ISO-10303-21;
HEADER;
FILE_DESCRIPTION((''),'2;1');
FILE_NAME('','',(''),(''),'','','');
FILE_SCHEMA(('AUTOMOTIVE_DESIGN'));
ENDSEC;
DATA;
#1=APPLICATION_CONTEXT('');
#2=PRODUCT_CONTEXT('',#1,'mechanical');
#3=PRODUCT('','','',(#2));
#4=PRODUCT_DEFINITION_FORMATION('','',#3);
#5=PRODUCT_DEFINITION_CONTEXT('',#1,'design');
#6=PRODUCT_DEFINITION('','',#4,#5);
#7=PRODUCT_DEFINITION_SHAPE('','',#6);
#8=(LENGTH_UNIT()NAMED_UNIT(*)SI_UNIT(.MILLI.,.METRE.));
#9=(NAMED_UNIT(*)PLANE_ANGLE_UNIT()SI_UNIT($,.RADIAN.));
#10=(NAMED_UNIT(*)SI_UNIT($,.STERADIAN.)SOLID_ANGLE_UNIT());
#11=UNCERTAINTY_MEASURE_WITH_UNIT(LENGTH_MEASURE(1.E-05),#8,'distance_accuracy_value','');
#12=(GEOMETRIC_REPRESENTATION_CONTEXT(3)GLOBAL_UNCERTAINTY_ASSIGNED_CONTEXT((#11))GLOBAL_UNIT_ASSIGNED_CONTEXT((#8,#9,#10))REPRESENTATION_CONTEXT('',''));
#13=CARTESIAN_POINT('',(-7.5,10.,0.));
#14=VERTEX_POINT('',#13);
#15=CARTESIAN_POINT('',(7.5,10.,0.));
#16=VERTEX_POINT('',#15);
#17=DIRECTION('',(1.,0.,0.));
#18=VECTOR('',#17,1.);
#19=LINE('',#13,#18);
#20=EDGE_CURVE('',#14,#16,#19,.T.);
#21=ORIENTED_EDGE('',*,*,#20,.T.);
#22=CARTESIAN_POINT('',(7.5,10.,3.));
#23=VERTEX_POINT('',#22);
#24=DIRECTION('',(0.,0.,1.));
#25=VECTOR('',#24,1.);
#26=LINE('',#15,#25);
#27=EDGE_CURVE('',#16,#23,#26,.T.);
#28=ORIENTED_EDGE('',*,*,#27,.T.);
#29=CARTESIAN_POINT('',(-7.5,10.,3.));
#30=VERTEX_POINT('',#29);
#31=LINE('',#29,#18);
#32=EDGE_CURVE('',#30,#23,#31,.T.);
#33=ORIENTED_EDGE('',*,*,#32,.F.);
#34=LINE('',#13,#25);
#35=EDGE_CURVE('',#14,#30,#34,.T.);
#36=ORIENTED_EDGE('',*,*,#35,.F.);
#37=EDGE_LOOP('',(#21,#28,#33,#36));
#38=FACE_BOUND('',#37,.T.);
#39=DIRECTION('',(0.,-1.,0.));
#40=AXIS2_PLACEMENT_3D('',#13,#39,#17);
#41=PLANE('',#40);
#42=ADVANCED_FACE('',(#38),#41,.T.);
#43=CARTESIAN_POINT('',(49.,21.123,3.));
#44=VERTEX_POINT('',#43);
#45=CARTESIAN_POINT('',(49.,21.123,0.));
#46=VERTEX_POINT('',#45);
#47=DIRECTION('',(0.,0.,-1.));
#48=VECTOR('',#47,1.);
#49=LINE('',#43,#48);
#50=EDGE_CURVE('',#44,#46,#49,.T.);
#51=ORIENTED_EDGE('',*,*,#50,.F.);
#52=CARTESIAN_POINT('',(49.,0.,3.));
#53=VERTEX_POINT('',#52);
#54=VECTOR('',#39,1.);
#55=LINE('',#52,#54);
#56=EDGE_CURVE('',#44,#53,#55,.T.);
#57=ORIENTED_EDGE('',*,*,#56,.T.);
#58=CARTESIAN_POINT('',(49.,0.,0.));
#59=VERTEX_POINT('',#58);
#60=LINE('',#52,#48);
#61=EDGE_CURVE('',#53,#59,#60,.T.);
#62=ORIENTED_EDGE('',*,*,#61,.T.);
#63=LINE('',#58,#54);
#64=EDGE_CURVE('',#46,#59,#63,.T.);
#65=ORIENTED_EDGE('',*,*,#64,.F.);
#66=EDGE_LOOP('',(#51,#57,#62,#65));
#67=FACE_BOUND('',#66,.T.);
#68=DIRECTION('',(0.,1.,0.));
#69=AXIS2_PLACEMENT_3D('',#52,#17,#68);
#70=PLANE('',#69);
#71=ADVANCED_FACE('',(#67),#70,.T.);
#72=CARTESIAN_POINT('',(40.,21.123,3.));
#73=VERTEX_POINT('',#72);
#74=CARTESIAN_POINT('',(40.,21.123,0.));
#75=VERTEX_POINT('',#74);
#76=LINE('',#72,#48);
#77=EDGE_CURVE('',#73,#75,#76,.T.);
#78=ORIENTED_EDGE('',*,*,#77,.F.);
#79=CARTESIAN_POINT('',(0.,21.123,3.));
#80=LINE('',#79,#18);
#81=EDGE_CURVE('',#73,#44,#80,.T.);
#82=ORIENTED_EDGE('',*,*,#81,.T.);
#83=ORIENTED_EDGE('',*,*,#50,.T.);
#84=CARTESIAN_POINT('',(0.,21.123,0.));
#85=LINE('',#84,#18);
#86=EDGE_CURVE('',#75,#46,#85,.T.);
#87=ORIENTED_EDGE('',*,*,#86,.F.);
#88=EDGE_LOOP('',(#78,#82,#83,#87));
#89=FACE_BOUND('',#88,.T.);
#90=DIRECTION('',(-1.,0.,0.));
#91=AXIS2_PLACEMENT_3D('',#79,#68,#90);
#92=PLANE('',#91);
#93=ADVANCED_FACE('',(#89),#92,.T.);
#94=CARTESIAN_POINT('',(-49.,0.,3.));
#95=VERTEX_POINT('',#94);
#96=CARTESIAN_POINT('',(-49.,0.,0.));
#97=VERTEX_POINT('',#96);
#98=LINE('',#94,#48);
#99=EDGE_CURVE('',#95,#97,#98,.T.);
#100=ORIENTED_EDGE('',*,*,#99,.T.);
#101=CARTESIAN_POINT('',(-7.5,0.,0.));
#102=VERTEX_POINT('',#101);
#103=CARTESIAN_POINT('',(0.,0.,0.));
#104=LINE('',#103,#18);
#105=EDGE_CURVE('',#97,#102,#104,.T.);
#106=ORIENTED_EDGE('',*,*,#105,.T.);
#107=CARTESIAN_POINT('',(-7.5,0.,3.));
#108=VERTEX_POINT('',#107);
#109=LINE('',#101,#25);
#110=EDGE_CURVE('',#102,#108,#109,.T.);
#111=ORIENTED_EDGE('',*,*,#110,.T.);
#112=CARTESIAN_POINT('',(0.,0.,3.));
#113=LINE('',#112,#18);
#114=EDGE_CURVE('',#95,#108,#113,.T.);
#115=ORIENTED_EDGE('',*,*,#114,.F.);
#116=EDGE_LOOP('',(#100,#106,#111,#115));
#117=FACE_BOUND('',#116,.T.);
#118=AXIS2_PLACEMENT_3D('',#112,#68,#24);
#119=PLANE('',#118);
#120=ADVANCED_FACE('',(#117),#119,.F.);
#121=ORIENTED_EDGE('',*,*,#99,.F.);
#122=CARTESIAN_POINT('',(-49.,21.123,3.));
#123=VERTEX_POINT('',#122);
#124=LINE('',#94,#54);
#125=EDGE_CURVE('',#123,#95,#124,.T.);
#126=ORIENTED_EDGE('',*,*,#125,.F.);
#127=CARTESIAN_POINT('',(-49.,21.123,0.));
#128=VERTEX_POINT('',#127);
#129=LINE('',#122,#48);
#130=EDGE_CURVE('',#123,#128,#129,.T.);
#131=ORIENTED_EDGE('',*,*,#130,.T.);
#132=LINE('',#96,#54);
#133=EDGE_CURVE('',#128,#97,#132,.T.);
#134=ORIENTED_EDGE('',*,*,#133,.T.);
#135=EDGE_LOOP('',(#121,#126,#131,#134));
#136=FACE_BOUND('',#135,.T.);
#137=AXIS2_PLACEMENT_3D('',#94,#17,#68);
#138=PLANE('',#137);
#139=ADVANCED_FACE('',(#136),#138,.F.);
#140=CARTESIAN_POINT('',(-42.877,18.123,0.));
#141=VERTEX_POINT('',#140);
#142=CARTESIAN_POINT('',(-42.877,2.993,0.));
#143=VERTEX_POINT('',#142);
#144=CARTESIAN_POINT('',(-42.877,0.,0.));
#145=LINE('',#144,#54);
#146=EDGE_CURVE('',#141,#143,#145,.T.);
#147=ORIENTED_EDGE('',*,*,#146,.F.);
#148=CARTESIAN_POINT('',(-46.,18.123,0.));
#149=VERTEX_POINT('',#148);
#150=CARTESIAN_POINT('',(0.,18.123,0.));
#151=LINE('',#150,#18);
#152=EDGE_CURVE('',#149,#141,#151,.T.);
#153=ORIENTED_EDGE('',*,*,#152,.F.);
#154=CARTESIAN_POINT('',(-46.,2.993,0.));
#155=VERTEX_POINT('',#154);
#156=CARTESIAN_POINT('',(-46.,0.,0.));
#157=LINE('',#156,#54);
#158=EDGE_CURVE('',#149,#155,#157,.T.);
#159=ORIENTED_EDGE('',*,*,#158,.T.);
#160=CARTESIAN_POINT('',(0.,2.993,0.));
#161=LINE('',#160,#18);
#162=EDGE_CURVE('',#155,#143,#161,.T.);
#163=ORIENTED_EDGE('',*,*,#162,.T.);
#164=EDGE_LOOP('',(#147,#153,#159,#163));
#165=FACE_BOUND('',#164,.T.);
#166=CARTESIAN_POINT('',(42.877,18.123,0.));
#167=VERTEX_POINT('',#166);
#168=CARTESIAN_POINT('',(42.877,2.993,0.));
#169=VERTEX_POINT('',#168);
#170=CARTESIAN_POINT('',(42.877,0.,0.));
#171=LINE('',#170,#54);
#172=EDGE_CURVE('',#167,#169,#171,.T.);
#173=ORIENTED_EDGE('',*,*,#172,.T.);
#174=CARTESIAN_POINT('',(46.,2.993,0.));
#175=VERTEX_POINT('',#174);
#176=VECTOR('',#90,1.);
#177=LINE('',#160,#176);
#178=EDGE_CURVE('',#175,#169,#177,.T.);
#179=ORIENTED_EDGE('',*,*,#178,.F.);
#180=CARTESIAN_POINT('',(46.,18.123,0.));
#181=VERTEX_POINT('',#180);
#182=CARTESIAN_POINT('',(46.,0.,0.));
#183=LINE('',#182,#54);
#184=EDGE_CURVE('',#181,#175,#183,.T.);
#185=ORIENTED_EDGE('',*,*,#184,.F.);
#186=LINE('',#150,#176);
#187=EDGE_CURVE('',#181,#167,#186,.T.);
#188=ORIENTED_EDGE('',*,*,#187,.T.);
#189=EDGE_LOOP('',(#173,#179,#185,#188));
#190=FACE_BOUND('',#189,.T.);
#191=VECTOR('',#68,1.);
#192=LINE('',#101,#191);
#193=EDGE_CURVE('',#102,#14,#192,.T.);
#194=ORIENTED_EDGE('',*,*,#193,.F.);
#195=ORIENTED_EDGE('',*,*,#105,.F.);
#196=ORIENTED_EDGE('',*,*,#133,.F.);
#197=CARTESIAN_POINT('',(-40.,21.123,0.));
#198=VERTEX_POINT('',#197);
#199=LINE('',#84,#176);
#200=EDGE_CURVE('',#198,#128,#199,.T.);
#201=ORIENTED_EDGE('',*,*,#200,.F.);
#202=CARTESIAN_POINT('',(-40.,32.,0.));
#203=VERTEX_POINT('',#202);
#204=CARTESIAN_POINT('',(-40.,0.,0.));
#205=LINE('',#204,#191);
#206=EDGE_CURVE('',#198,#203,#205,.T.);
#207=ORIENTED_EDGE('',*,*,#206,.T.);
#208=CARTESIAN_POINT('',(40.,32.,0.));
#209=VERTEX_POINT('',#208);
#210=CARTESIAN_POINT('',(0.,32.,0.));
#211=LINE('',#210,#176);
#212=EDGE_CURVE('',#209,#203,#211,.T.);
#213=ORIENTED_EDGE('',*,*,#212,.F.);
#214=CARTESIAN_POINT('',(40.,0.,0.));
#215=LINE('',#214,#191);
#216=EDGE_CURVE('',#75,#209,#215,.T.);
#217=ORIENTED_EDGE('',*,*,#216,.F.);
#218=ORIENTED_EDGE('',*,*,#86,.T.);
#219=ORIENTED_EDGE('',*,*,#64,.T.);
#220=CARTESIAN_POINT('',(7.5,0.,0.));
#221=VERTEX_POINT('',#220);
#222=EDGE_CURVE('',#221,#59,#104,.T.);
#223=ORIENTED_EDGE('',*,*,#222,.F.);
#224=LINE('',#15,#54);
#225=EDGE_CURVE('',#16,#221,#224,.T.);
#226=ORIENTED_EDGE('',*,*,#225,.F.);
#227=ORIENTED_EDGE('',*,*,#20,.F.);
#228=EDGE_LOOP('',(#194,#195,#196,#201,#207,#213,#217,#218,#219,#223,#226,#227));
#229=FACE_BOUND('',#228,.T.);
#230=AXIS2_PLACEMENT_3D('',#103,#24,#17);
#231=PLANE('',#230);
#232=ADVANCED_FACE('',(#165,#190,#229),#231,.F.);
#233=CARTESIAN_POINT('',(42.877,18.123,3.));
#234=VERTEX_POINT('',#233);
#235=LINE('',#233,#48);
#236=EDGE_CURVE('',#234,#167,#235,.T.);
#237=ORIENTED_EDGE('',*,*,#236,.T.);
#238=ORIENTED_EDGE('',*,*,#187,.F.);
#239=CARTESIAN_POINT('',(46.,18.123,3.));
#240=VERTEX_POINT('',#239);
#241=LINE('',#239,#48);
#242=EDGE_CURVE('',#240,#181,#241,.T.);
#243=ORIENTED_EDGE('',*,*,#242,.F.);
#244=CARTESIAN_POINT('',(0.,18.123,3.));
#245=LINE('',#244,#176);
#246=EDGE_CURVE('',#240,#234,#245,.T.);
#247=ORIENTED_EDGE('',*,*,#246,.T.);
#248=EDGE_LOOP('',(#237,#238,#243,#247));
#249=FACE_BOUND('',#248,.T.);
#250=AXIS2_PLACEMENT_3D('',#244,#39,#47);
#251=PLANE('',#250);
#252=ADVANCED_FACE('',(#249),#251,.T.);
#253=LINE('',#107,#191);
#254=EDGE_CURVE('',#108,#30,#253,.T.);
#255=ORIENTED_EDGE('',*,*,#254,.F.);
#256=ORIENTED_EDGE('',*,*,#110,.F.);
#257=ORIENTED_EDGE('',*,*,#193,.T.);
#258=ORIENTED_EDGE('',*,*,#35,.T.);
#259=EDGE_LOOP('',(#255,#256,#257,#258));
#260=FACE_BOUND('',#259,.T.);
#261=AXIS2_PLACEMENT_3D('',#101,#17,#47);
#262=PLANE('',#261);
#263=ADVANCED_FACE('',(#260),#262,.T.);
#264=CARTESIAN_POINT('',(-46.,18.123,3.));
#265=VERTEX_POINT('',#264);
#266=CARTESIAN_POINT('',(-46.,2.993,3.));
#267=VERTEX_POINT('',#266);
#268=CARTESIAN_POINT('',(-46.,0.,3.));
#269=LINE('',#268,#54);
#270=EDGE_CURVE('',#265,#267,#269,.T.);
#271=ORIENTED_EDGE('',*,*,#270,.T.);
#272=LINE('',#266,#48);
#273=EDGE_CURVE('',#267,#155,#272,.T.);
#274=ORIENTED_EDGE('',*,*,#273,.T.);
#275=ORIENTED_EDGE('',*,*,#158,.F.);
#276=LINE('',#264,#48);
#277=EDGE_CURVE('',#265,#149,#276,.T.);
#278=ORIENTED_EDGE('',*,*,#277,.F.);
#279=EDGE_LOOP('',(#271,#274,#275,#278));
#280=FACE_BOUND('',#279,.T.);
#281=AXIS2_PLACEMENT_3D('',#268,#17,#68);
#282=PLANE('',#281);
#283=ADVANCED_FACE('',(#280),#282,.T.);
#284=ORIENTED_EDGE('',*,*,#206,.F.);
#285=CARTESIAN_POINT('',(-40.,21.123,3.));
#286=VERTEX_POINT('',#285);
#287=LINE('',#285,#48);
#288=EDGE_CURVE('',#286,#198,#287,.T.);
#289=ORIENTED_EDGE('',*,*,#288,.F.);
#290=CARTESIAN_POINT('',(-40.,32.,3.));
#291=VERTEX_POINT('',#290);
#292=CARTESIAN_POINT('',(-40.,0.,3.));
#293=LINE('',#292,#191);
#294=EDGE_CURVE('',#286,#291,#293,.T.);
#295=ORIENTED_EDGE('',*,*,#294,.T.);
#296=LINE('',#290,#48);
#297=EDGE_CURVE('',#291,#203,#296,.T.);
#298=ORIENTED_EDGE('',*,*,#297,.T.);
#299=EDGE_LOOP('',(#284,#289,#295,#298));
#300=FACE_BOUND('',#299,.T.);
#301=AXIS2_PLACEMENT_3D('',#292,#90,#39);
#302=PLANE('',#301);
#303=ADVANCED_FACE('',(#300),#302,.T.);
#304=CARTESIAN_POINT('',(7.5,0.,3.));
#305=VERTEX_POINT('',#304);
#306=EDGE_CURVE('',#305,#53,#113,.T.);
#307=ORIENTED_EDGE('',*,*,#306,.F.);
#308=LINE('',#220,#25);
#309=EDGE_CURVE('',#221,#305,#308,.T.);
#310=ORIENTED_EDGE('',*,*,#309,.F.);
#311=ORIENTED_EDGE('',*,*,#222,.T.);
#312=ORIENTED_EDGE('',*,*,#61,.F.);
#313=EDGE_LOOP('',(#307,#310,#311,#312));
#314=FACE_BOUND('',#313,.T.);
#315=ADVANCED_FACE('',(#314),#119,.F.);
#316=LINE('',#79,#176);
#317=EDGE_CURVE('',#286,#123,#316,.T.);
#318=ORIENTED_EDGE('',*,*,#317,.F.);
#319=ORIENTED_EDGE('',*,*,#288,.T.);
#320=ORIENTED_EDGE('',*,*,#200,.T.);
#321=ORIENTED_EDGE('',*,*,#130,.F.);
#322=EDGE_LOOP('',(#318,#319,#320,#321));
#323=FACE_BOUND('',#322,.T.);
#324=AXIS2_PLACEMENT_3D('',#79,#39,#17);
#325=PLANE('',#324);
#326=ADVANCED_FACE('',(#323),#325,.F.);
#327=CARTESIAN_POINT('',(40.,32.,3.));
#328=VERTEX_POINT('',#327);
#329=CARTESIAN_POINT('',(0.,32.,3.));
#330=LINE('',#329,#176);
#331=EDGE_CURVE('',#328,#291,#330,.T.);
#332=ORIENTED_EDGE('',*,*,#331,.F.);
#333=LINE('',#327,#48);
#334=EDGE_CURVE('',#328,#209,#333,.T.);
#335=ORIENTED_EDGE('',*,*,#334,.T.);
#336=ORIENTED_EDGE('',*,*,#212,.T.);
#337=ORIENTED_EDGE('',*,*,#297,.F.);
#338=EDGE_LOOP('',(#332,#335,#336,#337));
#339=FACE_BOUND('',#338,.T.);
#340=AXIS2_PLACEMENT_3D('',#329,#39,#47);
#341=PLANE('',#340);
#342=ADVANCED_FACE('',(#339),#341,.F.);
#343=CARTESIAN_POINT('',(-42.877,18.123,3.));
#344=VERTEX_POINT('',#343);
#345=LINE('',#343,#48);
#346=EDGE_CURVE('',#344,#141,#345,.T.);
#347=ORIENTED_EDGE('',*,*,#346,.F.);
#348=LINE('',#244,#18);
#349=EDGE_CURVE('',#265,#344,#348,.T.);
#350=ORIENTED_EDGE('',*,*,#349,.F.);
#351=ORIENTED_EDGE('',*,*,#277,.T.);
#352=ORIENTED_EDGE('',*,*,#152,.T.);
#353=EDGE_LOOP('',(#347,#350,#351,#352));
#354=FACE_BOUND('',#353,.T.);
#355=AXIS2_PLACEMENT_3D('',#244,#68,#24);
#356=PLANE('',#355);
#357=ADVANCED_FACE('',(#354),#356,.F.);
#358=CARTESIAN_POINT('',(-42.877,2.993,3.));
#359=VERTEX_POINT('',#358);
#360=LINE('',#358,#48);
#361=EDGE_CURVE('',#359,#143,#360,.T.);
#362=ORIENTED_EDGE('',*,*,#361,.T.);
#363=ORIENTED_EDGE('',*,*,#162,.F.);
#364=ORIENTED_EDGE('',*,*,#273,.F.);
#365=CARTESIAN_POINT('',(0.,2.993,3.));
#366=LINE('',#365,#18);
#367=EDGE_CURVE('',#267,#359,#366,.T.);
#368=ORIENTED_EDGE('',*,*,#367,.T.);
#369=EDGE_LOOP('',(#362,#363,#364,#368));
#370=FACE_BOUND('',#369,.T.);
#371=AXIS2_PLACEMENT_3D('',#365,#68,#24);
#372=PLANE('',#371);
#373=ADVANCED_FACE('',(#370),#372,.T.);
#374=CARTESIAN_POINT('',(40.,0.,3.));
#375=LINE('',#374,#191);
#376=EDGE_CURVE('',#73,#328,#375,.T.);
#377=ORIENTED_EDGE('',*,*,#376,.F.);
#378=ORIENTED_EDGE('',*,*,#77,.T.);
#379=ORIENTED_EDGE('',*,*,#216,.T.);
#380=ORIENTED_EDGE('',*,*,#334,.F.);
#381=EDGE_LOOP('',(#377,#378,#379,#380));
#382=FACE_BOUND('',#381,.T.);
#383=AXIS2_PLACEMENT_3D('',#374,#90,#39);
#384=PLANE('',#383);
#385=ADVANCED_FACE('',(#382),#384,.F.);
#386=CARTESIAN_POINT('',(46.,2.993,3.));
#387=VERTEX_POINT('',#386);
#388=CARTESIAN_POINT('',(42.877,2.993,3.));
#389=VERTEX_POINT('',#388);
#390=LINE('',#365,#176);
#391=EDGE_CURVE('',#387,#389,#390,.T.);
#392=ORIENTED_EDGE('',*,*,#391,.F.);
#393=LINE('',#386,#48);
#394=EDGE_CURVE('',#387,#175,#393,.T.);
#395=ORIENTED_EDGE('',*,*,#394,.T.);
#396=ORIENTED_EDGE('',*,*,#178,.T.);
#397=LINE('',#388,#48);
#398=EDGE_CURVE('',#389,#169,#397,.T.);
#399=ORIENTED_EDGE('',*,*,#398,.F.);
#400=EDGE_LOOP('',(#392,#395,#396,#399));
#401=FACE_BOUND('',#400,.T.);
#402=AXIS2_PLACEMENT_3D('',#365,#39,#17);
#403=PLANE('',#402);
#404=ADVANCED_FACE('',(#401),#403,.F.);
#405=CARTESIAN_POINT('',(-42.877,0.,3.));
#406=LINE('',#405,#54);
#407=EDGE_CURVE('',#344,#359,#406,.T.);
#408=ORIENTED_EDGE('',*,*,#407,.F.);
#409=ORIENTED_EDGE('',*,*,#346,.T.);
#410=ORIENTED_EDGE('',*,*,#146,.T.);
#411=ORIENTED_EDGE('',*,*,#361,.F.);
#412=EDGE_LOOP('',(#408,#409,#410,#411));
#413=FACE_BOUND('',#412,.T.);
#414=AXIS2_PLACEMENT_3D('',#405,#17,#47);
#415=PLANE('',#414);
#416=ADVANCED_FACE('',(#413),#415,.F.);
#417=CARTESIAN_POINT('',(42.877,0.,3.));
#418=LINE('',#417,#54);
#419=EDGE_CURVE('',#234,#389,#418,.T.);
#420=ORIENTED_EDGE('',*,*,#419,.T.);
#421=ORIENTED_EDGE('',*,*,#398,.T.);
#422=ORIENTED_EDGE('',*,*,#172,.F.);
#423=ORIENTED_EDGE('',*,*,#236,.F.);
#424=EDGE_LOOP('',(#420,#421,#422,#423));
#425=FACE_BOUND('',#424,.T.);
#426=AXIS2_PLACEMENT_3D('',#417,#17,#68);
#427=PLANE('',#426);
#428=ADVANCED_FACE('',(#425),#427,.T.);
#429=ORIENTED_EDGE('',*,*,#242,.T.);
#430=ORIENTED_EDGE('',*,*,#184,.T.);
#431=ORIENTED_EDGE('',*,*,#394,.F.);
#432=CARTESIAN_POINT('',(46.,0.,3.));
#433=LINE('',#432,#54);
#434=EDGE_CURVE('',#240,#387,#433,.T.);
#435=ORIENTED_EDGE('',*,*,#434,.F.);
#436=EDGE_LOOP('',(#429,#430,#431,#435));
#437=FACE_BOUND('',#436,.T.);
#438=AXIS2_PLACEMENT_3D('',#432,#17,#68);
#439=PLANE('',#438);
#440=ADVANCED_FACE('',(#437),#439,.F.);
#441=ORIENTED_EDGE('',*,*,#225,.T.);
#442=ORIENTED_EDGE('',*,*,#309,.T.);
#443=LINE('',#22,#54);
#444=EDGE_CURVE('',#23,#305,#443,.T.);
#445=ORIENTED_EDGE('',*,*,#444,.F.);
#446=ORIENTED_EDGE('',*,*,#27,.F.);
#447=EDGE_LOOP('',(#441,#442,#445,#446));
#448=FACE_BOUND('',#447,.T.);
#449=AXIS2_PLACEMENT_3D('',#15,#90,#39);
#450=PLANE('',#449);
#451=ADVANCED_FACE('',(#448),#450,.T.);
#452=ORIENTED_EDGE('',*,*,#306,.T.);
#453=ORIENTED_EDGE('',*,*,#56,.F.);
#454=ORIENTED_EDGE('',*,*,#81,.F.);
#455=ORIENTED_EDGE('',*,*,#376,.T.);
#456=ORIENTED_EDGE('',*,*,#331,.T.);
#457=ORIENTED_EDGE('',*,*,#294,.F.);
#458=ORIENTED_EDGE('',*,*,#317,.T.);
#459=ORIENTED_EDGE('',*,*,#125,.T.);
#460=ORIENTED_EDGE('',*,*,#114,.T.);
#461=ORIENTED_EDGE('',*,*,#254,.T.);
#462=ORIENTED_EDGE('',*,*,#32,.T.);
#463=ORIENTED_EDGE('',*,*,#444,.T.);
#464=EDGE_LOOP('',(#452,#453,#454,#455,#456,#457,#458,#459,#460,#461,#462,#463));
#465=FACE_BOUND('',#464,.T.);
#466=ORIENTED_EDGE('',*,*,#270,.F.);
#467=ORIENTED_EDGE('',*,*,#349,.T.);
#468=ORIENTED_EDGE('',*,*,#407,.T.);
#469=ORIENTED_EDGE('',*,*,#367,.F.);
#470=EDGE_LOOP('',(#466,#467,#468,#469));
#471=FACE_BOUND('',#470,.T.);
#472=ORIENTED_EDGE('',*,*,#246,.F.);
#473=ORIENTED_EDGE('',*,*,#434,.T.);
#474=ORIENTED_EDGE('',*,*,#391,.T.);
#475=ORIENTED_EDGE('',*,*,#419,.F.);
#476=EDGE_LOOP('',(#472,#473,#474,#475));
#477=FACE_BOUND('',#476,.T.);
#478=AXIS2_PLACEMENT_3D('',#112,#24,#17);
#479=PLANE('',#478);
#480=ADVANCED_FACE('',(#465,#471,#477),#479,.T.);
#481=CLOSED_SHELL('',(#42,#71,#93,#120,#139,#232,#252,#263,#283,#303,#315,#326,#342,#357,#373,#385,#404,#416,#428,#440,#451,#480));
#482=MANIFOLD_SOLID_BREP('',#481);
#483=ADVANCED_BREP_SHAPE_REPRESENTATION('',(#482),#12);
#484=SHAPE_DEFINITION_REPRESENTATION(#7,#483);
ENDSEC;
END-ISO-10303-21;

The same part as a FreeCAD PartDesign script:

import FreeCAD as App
import Part
import Sketcher


def add_polygon(sketch, points):
    """Adds a closed chain of lines whose ends are joined by coincident constraints."""
    first, n = sketch.GeometryCount, len(points)
    for a, b in zip(points, points[1:] + points[:1]):
        sketch.addGeometry(Part.LineSegment(App.Vector(*a, 0), App.Vector(*b, 0)), False)
    for i in range(n):
        sketch.addConstraint(Sketcher.Constraint("Coincident", first + i, 2, first + (i + 1) % n, 1))

doc = App.newDocument("Part")
body = doc.addObject("PartDesign::Body", "Body")

# Sketch on XY plane
sketch1 = body.newObject("Sketcher::SketchObject", "Sketch")
sketch1.AttachmentSupport = (doc.getObject("XY_Plane"), [""])
sketch1.MapMode = "FlatFace"
add_polygon(sketch1, [(-49, 0), (49, 0), (49, 21.1), (40, 21.1), (40, 32), (-40, 32), (-40, 21.1), (-49, 21.1)])  # lines 0-7
add_polygon(sketch1, [(-42.9, 3), (-46, 3), (-46, 18.1), (-42.9, 18.1)])  # lines 8-11
add_polygon(sketch1, [(46, 3), (42.9, 3), (42.9, 18.1), (46, 18.1)])  # lines 12-15
sketch1.addConstraint(Sketcher.Constraint("Horizontal", 0))
sketch1.addConstraint(Sketcher.Constraint("Vertical", 1))
sketch1.addConstraint(Sketcher.Constraint("Horizontal", 2))
sketch1.addConstraint(Sketcher.Constraint("Vertical", 3))
sketch1.addConstraint(Sketcher.Constraint("Horizontal", 4))
sketch1.addConstraint(Sketcher.Constraint("Vertical", 5))
sketch1.addConstraint(Sketcher.Constraint("Horizontal", 6))
sketch1.addConstraint(Sketcher.Constraint("Vertical", 7))
sketch1.addConstraint(Sketcher.Constraint("Horizontal", 8))
sketch1.addConstraint(Sketcher.Constraint("Vertical", 9))
sketch1.addConstraint(Sketcher.Constraint("Horizontal", 10))
sketch1.addConstraint(Sketcher.Constraint("Vertical", 11))
sketch1.addConstraint(Sketcher.Constraint("Horizontal", 12))
sketch1.addConstraint(Sketcher.Constraint("Vertical", 13))
sketch1.addConstraint(Sketcher.Constraint("Horizontal", 14))
sketch1.addConstraint(Sketcher.Constraint("Vertical", 15))
sketch1.addConstraint(Sketcher.Constraint("Symmetric", 0, 2, 7, 2, -1, 1))
sketch1.addConstraint(Sketcher.Constraint("Symmetric", 2, 2, 5, 2, -2))
sketch1.addConstraint(Sketcher.Constraint("Symmetric", 11, 2, 12, 2, -2))
sketch1.addConstraint(Sketcher.Constraint("Symmetric", 9, 2, 14, 2, -2))
sketch1.addConstraint(Sketcher.Constraint("DistanceX", 0, 1, 0, 2, 98.0))
sketch1.addConstraint(Sketcher.Constraint("DistanceX", 2, 2, 2, 1, 9.0))
sketch1.addConstraint(Sketcher.Constraint("DistanceY", -1, 1, 3, 2, 32.0))
sketch1.addConstraint(Sketcher.Constraint("DistanceX", 8, 2, -1, 1, 46.0))
sketch1.addConstraint(Sketcher.Constraint("DistanceY", 9, 2, 6, 2, 3.0))
sketch1.addConstraint(Sketcher.Constraint("DistanceY", 9, 1, 9, 2, 15.13))
sketch1.addConstraint(Sketcher.Constraint("DistanceX", 8, 2, 8, 1, 3.123))
sketch1.addConstraint(Sketcher.Constraint("DistanceY", 1, 1, 1, 2, 21.123))
pad1 = body.newObject("PartDesign::Pad", "Pad")
pad1.Profile = sketch1
pad1.Length = 3

# Sketch on XY plane
sketch2 = body.newObject("Sketcher::SketchObject", "Sketch001")
sketch2.AttachmentSupport = (doc.getObject("XY_Plane"), [""])
sketch2.MapMode = "FlatFace"
sketch2.AttachmentOffset = App.Placement(App.Vector(0, 0, 3), App.Rotation())
add_polygon(sketch2, [(-8, 10), (-8, 0), (8, 0), (8, 10)])  # lines 0-3
sketch2.addConstraint(Sketcher.Constraint("Vertical", 0))
sketch2.addConstraint(Sketcher.Constraint("Horizontal", 1))
sketch2.addConstraint(Sketcher.Constraint("Vertical", 2))
sketch2.addConstraint(Sketcher.Constraint("Horizontal", 3))
sketch2.addConstraint(Sketcher.Constraint("Symmetric", 0, 2, 1, 2, -1, 1))
sketch2.addConstraint(Sketcher.Constraint("DistanceX", 1, 1, 1, 2, 15.0))
sketch2.addConstraint(Sketcher.Constraint("DistanceY", 0, 2, 0, 1, 10.0))
pocket1 = body.newObject("PartDesign::Pocket", "Pocket")
pocket1.Profile = sketch2
pocket1.Type = "ThroughAll"

doc.recompute()
